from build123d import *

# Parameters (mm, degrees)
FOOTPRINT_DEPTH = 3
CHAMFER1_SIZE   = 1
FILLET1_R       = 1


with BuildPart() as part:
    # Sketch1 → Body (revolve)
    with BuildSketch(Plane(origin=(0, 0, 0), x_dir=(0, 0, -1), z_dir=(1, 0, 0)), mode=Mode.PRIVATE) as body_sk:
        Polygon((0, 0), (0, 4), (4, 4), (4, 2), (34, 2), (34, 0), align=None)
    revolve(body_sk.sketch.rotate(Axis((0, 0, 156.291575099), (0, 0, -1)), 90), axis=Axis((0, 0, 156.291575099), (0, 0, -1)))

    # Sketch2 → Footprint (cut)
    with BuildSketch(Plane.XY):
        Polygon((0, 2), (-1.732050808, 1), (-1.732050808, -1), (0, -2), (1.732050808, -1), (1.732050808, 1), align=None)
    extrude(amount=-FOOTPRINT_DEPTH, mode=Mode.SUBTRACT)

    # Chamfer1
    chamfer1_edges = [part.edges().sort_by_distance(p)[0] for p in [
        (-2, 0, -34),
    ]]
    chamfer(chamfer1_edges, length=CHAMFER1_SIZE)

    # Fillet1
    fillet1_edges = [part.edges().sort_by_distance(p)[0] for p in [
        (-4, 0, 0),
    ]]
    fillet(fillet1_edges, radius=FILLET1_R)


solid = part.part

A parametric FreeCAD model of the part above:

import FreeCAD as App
import Part
import Sketcher
from FreeCAD import Vector
Q = App.Units.Quantity


def edges_at(feature, points):
    """Names of the edges that pass closest to the given points."""
    edges = feature.Shape.Edges
    near = lambda p: min(range(len(edges)), key=lambda i: edges[i].distToShape(Part.Vertex(*p))[0])
    return sorted({f"Edge{near(p) + 1}" for p in points})

doc = App.newDocument("Part")
body = doc.addObject("PartDesign::Body", "Body")

sketch1 = body.newObject("Sketcher::SketchObject", "Sketch")
sketch1.AttachmentSupport = (doc.getObject("YZ_Plane"), [""])
sketch1.MapMode = "FlatFace"
sketch1.addGeometry([
    Part.LineSegment(Vector(4, 0, 0), Vector(0, 0, 0)),
    Part.LineSegment(Vector(0, 0, 0), Vector(0, -34, 0)),
    Part.LineSegment(Vector(0, -34, 0), Vector(2, -34, 0)),
    Part.LineSegment(Vector(2, -34, 0), Vector(2, -4, 0)),
    Part.LineSegment(Vector(2, -4, 0), Vector(4, -4, 0)),
    Part.LineSegment(Vector(4, -4, 0), Vector(4, 0, 0)),
], False)
sketch1.addConstraint([
    Sketcher.Constraint("Coincident", 0, 2, 1, 1),
    Sketcher.Constraint("Coincident", 1, 2, 2, 1),
    Sketcher.Constraint("Coincident", 2, 2, 3, 1),
    Sketcher.Constraint("Coincident", 3, 2, 4, 1),
    Sketcher.Constraint("Coincident", 4, 2, 5, 1),
    Sketcher.Constraint("Coincident", 5, 2, 0, 1),
    Sketcher.Constraint("Horizontal", 0),
    Sketcher.Constraint("Vertical", 1),
    Sketcher.Constraint("Horizontal", 2),
    Sketcher.Constraint("Vertical", 3),
    Sketcher.Constraint("Horizontal", 4),
    Sketcher.Constraint("Vertical", 5),
    Sketcher.Constraint("Coincident", 0, 2, -1, 1),
    Sketcher.Constraint("Equal", 2, 4),
    Sketcher.Constraint("Equal", 0, 5),
    Sketcher.Constraint("DistanceX", 0, 2, 0, 1, Q("4 mm")),
    Sketcher.Constraint("DistanceY", 1, 2, 1, 1, Q("34 mm")),
])
revolution = body.newObject("PartDesign::Revolution", "Revolution")
revolution.Profile = sketch1
revolution.ReferenceAxis = (sketch1, ["V_Axis"])
revolution.Angle = 360

sketch2 = body.newObject("Sketcher::SketchObject", "Sketch001")
sketch2.AttachmentSupport = (doc.getObject("XY_Plane"), [""])
sketch2.MapMode = "FlatFace"
sketch2.addGeometry([
    Part.LineSegment(Vector(0, 2, 0), Vector(-1.732051, 1, 0)),
    Part.LineSegment(Vector(-1.732051, 1, 0), Vector(-1.732051, -1, 0)),
    Part.LineSegment(Vector(-1.732051, -1, 0), Vector(0, -2, 0)),
    Part.LineSegment(Vector(0, -2, 0), Vector(1.732051, -1, 0)),
    Part.LineSegment(Vector(1.732051, -1, 0), Vector(1.732051, 1, 0)),
    Part.LineSegment(Vector(1.732051, 1, 0), Vector(0, 2, 0)),
], False)
sketch2.addConstraint([
    Sketcher.Constraint("Coincident", 0, 2, 1, 1),
    Sketcher.Constraint("Coincident", 1, 2, 2, 1),
    Sketcher.Constraint("Coincident", 2, 2, 3, 1),
    Sketcher.Constraint("Coincident", 3, 2, 4, 1),
    Sketcher.Constraint("Coincident", 4, 2, 5, 1),
    Sketcher.Constraint("Coincident", 5, 2, 0, 1),
    Sketcher.Constraint("Vertical", 1),
    Sketcher.Constraint("Vertical", 4),
    Sketcher.Constraint("Symmetric", 0, 2, 3, 2, -1, 1),
    Sketcher.Constraint("Symmetric", 2, 2, 5, 2, -1, 1),
    Sketcher.Constraint("PointOnObject", 2, 2, -2),
    Sketcher.Constraint("Parallel", 2, 5),
    Sketcher.Constraint("Horizontal", 1, 2, 3, 2),
    Sketcher.Constraint("DistanceY", 1, 2, 1, 1, Q("2 mm")),
    Sketcher.Constraint("Angle", 0, Q("-150 deg")),
    Sketcher.Constraint("Distance", 0, Q("2 mm")),
])
pocket1 = body.newObject("PartDesign::Pocket", "Pocket")
pocket1.Profile = sketch2
pocket1.Length = 3
doc.recompute()

chamfer = body.newObject("PartDesign::Chamfer", "Chamfer")
chamfer.Base = (pocket1, edges_at(pocket1, [(-2, 0, -34)]))
chamfer.Size = 1
doc.recompute()

fillet = body.newObject("PartDesign::Fillet", "Fillet")
fillet.Base = (chamfer, edges_at(chamfer, [(-4, 0, 0)]))
fillet.Radius = 1

doc.recompute()
